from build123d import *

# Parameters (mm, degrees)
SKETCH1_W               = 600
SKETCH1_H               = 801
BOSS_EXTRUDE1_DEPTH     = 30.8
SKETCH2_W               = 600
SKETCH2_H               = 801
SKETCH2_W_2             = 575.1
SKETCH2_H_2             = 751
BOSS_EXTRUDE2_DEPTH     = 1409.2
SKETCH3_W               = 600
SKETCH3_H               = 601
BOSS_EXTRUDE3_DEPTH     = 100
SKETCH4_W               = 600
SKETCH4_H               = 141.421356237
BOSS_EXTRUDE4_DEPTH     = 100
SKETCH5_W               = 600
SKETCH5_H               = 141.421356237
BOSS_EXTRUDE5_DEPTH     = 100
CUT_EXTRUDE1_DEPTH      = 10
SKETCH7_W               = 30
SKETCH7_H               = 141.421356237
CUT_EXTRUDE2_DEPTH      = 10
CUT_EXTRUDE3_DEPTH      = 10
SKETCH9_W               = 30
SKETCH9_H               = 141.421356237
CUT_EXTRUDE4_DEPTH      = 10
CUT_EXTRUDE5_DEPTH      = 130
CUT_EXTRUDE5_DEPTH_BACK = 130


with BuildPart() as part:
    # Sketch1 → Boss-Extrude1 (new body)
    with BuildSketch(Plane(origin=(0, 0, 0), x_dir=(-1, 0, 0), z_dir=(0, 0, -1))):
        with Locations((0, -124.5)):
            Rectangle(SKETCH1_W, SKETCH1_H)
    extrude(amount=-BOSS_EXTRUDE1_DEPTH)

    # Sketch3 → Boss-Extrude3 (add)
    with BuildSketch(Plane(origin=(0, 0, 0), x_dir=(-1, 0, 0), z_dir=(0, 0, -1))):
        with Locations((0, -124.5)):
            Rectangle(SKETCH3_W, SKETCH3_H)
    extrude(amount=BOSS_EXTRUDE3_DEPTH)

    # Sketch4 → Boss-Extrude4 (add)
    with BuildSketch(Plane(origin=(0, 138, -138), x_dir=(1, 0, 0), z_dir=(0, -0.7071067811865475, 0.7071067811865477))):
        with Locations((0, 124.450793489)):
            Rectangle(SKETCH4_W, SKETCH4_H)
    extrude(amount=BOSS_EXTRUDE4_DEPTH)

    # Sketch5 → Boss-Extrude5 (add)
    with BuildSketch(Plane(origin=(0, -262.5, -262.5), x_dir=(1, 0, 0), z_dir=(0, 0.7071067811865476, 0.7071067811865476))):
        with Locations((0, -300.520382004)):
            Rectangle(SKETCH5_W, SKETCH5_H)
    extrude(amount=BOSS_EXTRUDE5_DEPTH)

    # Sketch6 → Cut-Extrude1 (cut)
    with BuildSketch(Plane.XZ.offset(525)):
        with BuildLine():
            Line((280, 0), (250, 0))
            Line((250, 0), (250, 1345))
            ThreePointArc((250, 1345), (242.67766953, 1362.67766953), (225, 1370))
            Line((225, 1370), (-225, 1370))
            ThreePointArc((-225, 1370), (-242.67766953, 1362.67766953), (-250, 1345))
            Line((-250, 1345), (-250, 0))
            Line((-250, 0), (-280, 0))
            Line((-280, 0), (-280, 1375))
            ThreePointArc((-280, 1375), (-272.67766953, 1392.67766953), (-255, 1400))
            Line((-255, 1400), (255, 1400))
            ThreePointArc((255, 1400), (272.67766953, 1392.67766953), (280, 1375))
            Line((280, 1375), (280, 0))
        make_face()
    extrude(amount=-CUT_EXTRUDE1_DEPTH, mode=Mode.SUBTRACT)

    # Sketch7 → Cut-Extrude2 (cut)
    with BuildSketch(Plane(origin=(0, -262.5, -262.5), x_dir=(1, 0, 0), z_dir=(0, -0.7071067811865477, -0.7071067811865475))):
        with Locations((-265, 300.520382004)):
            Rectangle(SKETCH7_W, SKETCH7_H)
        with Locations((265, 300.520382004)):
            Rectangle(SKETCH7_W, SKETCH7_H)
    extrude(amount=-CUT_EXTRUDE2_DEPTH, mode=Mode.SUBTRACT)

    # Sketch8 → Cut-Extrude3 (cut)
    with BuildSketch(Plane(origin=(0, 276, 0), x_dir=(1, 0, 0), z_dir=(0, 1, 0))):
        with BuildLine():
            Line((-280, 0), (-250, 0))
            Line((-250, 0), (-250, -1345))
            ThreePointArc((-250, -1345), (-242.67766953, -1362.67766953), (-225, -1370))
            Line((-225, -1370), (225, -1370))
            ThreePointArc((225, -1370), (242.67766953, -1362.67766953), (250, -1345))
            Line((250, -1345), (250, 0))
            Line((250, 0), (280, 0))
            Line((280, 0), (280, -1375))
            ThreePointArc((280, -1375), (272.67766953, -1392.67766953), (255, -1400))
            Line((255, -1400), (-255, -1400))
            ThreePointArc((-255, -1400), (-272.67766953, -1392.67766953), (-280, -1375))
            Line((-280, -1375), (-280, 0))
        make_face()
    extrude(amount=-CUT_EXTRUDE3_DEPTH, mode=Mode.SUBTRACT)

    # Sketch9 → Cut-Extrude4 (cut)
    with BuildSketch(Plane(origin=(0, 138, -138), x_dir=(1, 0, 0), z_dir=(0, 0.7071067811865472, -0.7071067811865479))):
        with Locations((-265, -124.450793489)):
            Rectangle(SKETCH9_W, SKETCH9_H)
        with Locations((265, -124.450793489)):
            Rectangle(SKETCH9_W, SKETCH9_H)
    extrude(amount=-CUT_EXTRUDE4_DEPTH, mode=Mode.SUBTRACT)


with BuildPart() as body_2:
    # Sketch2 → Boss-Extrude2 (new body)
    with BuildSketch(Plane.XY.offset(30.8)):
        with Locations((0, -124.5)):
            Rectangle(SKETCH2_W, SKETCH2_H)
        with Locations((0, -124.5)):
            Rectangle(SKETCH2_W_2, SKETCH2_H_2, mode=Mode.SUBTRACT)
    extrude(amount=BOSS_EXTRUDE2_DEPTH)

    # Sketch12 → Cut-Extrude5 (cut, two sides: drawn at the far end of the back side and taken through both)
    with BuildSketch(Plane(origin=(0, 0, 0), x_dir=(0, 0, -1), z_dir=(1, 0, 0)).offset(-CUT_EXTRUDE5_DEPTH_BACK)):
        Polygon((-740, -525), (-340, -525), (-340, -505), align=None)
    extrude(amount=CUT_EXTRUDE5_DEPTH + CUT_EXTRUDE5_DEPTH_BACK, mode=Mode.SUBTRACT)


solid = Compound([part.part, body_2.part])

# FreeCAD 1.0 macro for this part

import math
import FreeCAD as App
import Part
import Sketcher
from FreeCAD import Vector
Q = App.Units.Quantity

doc = App.newDocument("Part")
body = doc.addObject("PartDesign::Body", "Body")

# Sketch on XY plane
sketch1 = body.newObject("Sketcher::SketchObject", "Sketch")
sketch1.AttachmentSupport = (doc.getObject("XY_Plane"), [""])
sketch1.MapMode = "FlatFace"
sketch1.addGeometry([
    Part.LineSegment(Vector(300, 276, 0), Vector(300, -525, 0)),
    Part.LineSegment(Vector(300, -525, 0), Vector(-300, -525, 0)),
    Part.LineSegment(Vector(-300, -525, 0), Vector(-300, 276, 0)),
    Part.LineSegment(Vector(-300, 276, 0), Vector(300, 276, 0)),
], False)
sketch1.addConstraint([
    Sketcher.Constraint("Coincident", 0, 2, 1, 1),
    Sketcher.Constraint("Coincident", 1, 2, 2, 1),
    Sketcher.Constraint("Coincident", 2, 2, 3, 1),
    Sketcher.Constraint("Coincident", 3, 2, 0, 1),
    Sketcher.Constraint("Vertical", 0),
    Sketcher.Constraint("Horizontal", 1),
    Sketcher.Constraint("Vertical", 2),
    Sketcher.Constraint("Horizontal", 3),
    Sketcher.Constraint("DistanceX", 1, 2, 1, 1, Q("600 mm")),
    Sketcher.Constraint("DistanceY", 0, 2, 0, 1, Q("801 mm")),
    Sketcher.Constraint("DistanceX", -1, 1, 0, 2, Q("300 mm")),
    Sketcher.Constraint("DistanceY", 0, 2, -1, 1, Q("525 mm")),
])
pad1 = body.newObject("PartDesign::Pad", "Pad")
pad1.Profile = sketch1
pad1.Length = 30.8

# Sketch on XY plane
sketch2 = body.newObject("Sketcher::SketchObject", "Sketch001")
sketch2.AttachmentSupport = (doc.getObject("XY_Plane"), [""])
sketch2.MapMode = "FlatFace"
sketch2.addGeometry([
    Part.LineSegment(Vector(300, 176, 0), Vector(300, -425, 0)),
    Part.LineSegment(Vector(300, -425, 0), Vector(-300, -425, 0)),
    Part.LineSegment(Vector(-300, -425, 0), Vector(-300, 176, 0)),
    Part.LineSegment(Vector(-300, 176, 0), Vector(300, 176, 0)),
], False)
sketch2.addConstraint([
    Sketcher.Constraint("Coincident", 0, 2, 1, 1),
    Sketcher.Constraint("Coincident", 1, 2, 2, 1),
    Sketcher.Constraint("Coincident", 2, 2, 3, 1),
    Sketcher.Constraint("Coincident", 3, 2, 0, 1),
    Sketcher.Constraint("Vertical", 0),
    Sketcher.Constraint("Horizontal", 1),
    Sketcher.Constraint("Vertical", 2),
    Sketcher.Constraint("Horizontal", 3),
    Sketcher.Constraint("DistanceX", 1, 2, 1, 1, Q("600 mm")),
    Sketcher.Constraint("DistanceY", 0, 2, 0, 1, Q("601 mm")),
    Sketcher.Constraint("DistanceX", -1, 1, 0, 2, Q("300 mm")),
    Sketcher.Constraint("DistanceY", 0, 2, -1, 1, Q("425 mm")),
])
pad2 = body.newObject("PartDesign::Pad", "Pad001")
pad2.Profile = sketch2
pad2.Length = 100
pad2.Reversed = True

# Sketch on an angled plane
sketch3 = body.newObject("Sketcher::SketchObject", "Sketch002")
sketch3.Placement = App.Placement(Vector(0, 138, -138), App.Rotation(Vector(1, 0, 0), Vector(0, 0.707106781, 0.707106781), Vector(0, -0.707106781, 0.707106781), "ZXY"))
sketch3.addGeometry([
    Part.LineSegment(Vector(-300, 195, 0), Vector(-300, 54, 0)),
    Part.LineSegment(Vector(-300, 54, 0), Vector(300, 54, 0)),
    Part.LineSegment(Vector(300, 54, 0), Vector(300, 195, 0)),
    Part.LineSegment(Vector(300, 195, 0), Vector(-300, 195, 0)),
], False)
sketch3.addConstraint([
    Sketcher.Constraint("Coincident", 0, 2, 1, 1),
    Sketcher.Constraint("Coincident", 1, 2, 2, 1),
    Sketcher.Constraint("Coincident", 2, 2, 3, 1),
    Sketcher.Constraint("Coincident", 3, 2, 0, 1),
    Sketcher.Constraint("Vertical", 0),
    Sketcher.Constraint("Horizontal", 1),
    Sketcher.Constraint("Vertical", 2),
    Sketcher.Constraint("Horizontal", 3),
    Sketcher.Constraint("DistanceX", 1, 1, 1, 2, Q("600 mm")),
    Sketcher.Constraint("DistanceX", 0, 2, -1, 1, Q("300 mm")),
    Sketcher.Constraint("DistanceY", 0, 2, 0, 1, Q("141.421356 mm")),
    Sketcher.Constraint("DistanceY", -1, 1, 2, 2, Q("195.161472 mm")),
])
pad3 = body.newObject("PartDesign::Pad", "Pad002")
pad3.Profile = sketch3
pad3.Length = 100

# Sketch on an angled plane
sketch4 = body.newObject("Sketcher::SketchObject", "Sketch003")
sketch4.Placement = App.Placement(Vector(0, -262.5, -262.5), App.Rotation(Vector(1, 0, 0), Vector(0, 0.707106781, -0.707106781), Vector(0, 0.707106781, 0.707106781), "ZXY"))
sketch4.addGeometry([
    Part.LineSegment(Vector(-300, -230, 0), Vector(-300, -371, 0)),
    Part.LineSegment(Vector(-300, -371, 0), Vector(300, -371, 0)),
    Part.LineSegment(Vector(300, -371, 0), Vector(300, -230, 0)),
    Part.LineSegment(Vector(300, -230, 0), Vector(-300, -230, 0)),
], False)
sketch4.addConstraint([
    Sketcher.Constraint("Coincident", 0, 2, 1, 1),
    Sketcher.Constraint("Coincident", 1, 2, 2, 1),
    Sketcher.Constraint("Coincident", 2, 2, 3, 1),
    Sketcher.Constraint("Coincident", 3, 2, 0, 1),
    Sketcher.Constraint("Vertical", 0),
    Sketcher.Constraint("Horizontal", 1),
    Sketcher.Constraint("Vertical", 2),
    Sketcher.Constraint("Horizontal", 3),
    Sketcher.Constraint("DistanceX", 1, 1, 1, 2, Q("600 mm")),
    Sketcher.Constraint("DistanceX", 0, 2, -1, 1, Q("300 mm")),
    Sketcher.Constraint("DistanceY", 0, 2, 0, 1, Q("141.421356 mm")),
    Sketcher.Constraint("DistanceY", 0, 2, -1, 1, Q("371.23106 mm")),
])
pad4 = body.newObject("PartDesign::Pad", "Pad003")
pad4.Profile = sketch4
pad4.Length = 100

# Sketch on XZ plane
sketch5 = body.newObject("Sketcher::SketchObject", "Sketch004")
sketch5.AttachmentSupport = (doc.getObject("XZ_Plane"), [""])
sketch5.MapMode = "FlatFace"
sketch5.AttachmentOffset = App.Placement(Vector(0, 0, 525), App.Rotation())
sketch5.addGeometry([
    Part.LineSegment(Vector(250, 0, 0), Vector(280, 0, 0)),  # 0
    Part.LineSegment(Vector(280, 0, 0), Vector(280, 1375, 0)),  # 1
    Part.ArcOfCircle(Part.Circle(Vector(255, 1375, 0), Vector(0, 0, 1), 25), math.radians(0), math.radians(90)),  # 2
    Part.LineSegment(Vector(255, 1400, 0), Vector(-255, 1400, 0)),  # 3
    Part.ArcOfCircle(Part.Circle(Vector(-255, 1375, 0), Vector(0, 0, 1), 25), math.radians(90), math.radians(180)),  # 4
    Part.LineSegment(Vector(-280, 1375, 0), Vector(-280, 0, 0)),  # 5
    Part.LineSegment(Vector(-280, 0, 0), Vector(-250, 0, 0)),  # 6
    Part.LineSegment(Vector(-250, 0, 0), Vector(-250, 1345, 0)),  # 7
    Part.ArcOfCircle(Part.Circle(Vector(-225, 1345, 0), Vector(0, 0, 1), 25), math.radians(90), math.radians(180)),  # 8
    Part.LineSegment(Vector(-225, 1370, 0), Vector(225, 1370, 0)),  # 9
    Part.ArcOfCircle(Part.Circle(Vector(225, 1345, 0), Vector(0, 0, 1), 25), math.radians(0), math.radians(90)),  # 10
    Part.LineSegment(Vector(250, 1345, 0), Vector(250, 0, 0)),  # 11
], False)
sketch5.addConstraint([
    Sketcher.Constraint("Coincident", 0, 2, 1, 1),
    Sketcher.Constraint("Tangent", 1, 2, 2, 1),
    Sketcher.Constraint("Tangent", 2, 2, 3, 1),
    Sketcher.Constraint("Tangent", 3, 2, 4, 1),
    Sketcher.Constraint("Tangent", 4, 2, 5, 1),
    Sketcher.Constraint("Coincident", 5, 2, 6, 1),
    Sketcher.Constraint("Coincident", 6, 2, 7, 1),
    Sketcher.Constraint("Tangent", 7, 2, 8, 2),
    Sketcher.Constraint("Tangent", 8, 1, 9, 1),
    Sketcher.Constraint("Tangent", 9, 2, 10, 2),
    Sketcher.Constraint("Tangent", 10, 1, 11, 1),
    Sketcher.Constraint("Coincident", 11, 2, 0, 1),
    Sketcher.Constraint("Horizontal", 0),
    Sketcher.Constraint("Vertical", 1),
    Sketcher.Constraint("Horizontal", 3),
    Sketcher.Constraint("Vertical", 5),
    Sketcher.Constraint("Horizontal", 6),
    Sketcher.Constraint("Vertical", 7),
    Sketcher.Constraint("Horizontal", 9),
    Sketcher.Constraint("Vertical", 11),
    Sketcher.Constraint("Equal", 2, 4),
    Sketcher.Constraint("Equal", 4, 8),
    Sketcher.Constraint("Equal", 8, 10),
    Sketcher.Constraint("Symmetric", 0, 2, 5, 2, -1, 1),
    Sketcher.Constraint("Symmetric", 6, 2, 11, 2, -2),
    Sketcher.Constraint("Radius", 2, Q("25 mm")),
    Sketcher.Constraint("DistanceX", 0, 1, 0, 2, Q("30 mm")),
    Sketcher.Constraint("DistanceX", 3, 2, 3, 1, Q("510 mm")),
    Sketcher.Constraint("DistanceY", 1, 1, 1, 2, Q("1375 mm")),
    Sketcher.Constraint("DistanceY", 7, 1, 7, 2, Q("1345 mm")),
])
pocket1 = body.newObject("PartDesign::Pocket", "Pocket")
pocket1.Profile = sketch5
pocket1.Length = 10

# Sketch on an angled plane
sketch6 = body.newObject("Sketcher::SketchObject", "Sketch005")
sketch6.Placement = App.Placement(Vector(0, -262.5, -262.5), App.Rotation(Vector(1, 0, 0), Vector(0, -0.707106781, 0.707106781), Vector(0, -0.707106781, -0.707106781), "ZXY"))
sketch6.addGeometry([
    Part.LineSegment(Vector(-280, 371, 0), Vector(-280, 230, 0)),  # 0
    Part.LineSegment(Vector(-280, 230, 0), Vector(-250, 230, 0)),  # 1
    Part.LineSegment(Vector(-250, 230, 0), Vector(-250, 371, 0)),  # 2
    Part.LineSegment(Vector(-250, 371, 0), Vector(-280, 371, 0)),  # 3
    Part.LineSegment(Vector(250, 371, 0), Vector(250, 230, 0)),  # 4
    Part.LineSegment(Vector(250, 230, 0), Vector(280, 230, 0)),  # 5
    Part.LineSegment(Vector(280, 230, 0), Vector(280, 371, 0)),  # 6
    Part.LineSegment(Vector(280, 371, 0), Vector(250, 371, 0)),  # 7
], False)
sketch6.addConstraint([
    Sketcher.Constraint("Coincident", 0, 2, 1, 1),
    Sketcher.Constraint("Coincident", 1, 2, 2, 1),
    Sketcher.Constraint("Coincident", 2, 2, 3, 1),
    Sketcher.Constraint("Coincident", 3, 2, 0, 1),
    Sketcher.Constraint("Coincident", 4, 2, 5, 1),
    Sketcher.Constraint("Coincident", 5, 2, 6, 1),
    Sketcher.Constraint("Coincident", 6, 2, 7, 1),
    Sketcher.Constraint("Coincident", 7, 2, 4, 1),
    Sketcher.Constraint("Vertical", 0),
    Sketcher.Constraint("Horizontal", 1),
    Sketcher.Constraint("Vertical", 2),
    Sketcher.Constraint("Horizontal", 3),
    Sketcher.Constraint("Vertical", 4),
    Sketcher.Constraint("Horizontal", 5),
    Sketcher.Constraint("Vertical", 6),
    Sketcher.Constraint("Horizontal", 7),
    Sketcher.Constraint("Symmetric", 1, 2, 4, 2, -2),
    Sketcher.Constraint("Symmetric", 3, 2, 6, 2, -2),
    Sketcher.Constraint("DistanceX", 1, 1, 1, 2, Q("30 mm")),
    Sketcher.Constraint("DistanceX", 0, 2, -1, 1, Q("280 mm")),
    Sketcher.Constraint("DistanceY", 0, 2, 0, 1, Q("141.421356 mm")),
    Sketcher.Constraint("DistanceY", -1, 1, 2, 2, Q("371.23106 mm")),
])
pocket2 = body.newObject("PartDesign::Pocket", "Pocket001")
pocket2.Profile = sketch6
pocket2.Length = 10

# Sketch on XZ plane
sketch7 = body.newObject("Sketcher::SketchObject", "Sketch006")
sketch7.AttachmentSupport = (doc.getObject("XZ_Plane"), [""])
sketch7.MapMode = "FlatFace"
sketch7.AttachmentOffset = App.Placement(Vector(0, 0, -276), App.Rotation())
sketch7.addGeometry([
    Part.LineSegment(Vector(-250, 0, 0), Vector(-280, 0, 0)),  # 0
    Part.LineSegment(Vector(-280, 0, 0), Vector(-280, 1375, 0)),  # 1
    Part.ArcOfCircle(Part.Circle(Vector(-255, 1375, 0), Vector(0, 0, 1), 25), math.radians(90), math.radians(180)),  # 2
    Part.LineSegment(Vector(-255, 1400, 0), Vector(255, 1400, 0)),  # 3
    Part.ArcOfCircle(Part.Circle(Vector(255, 1375, 0), Vector(0, 0, 1), 25), math.radians(0), math.radians(90)),  # 4
    Part.LineSegment(Vector(280, 1375, 0), Vector(280, 0, 0)),  # 5
    Part.LineSegment(Vector(280, 0, 0), Vector(250, 0, 0)),  # 6
    Part.LineSegment(Vector(250, 0, 0), Vector(250, 1345, 0)),  # 7
    Part.ArcOfCircle(Part.Circle(Vector(225, 1345, 0), Vector(0, 0, 1), 25), math.radians(0), math.radians(90)),  # 8
    Part.LineSegment(Vector(225, 1370, 0), Vector(-225, 1370, 0)),  # 9
    Part.ArcOfCircle(Part.Circle(Vector(-225, 1345, 0), Vector(0, 0, 1), 25), math.radians(90), math.radians(180)),  # 10
    Part.LineSegment(Vector(-250, 1345, 0), Vector(-250, 0, 0)),  # 11
], False)
sketch7.addConstraint([
    Sketcher.Constraint("Coincident", 0, 2, 1, 1),
    Sketcher.Constraint("Tangent", 1, 2, 2, 2),
    Sketcher.Constraint("Tangent", 2, 1, 3, 1),
    Sketcher.Constraint("Tangent", 3, 2, 4, 2),
    Sketcher.Constraint("Tangent", 4, 1, 5, 1),
    Sketcher.Constraint("Coincident", 5, 2, 6, 1),
    Sketcher.Constraint("Coincident", 6, 2, 7, 1),
    Sketcher.Constraint("Tangent", 7, 2, 8, 1),
    Sketcher.Constraint("Tangent", 8, 2, 9, 1),
    Sketcher.Constraint("Tangent", 9, 2, 10, 1),
    Sketcher.Constraint("Tangent", 10, 2, 11, 1),
    Sketcher.Constraint("Coincident", 11, 2, 0, 1),
    Sketcher.Constraint("Horizontal", 0),
    Sketcher.Constraint("Vertical", 1),
    Sketcher.Constraint("Horizontal", 3),
    Sketcher.Constraint("Vertical", 5),
    Sketcher.Constraint("Horizontal", 6),
    Sketcher.Constraint("Vertical", 7),
    Sketcher.Constraint("Horizontal", 9),
    Sketcher.Constraint("Vertical", 11),
    Sketcher.Constraint("Equal", 2, 4),
    Sketcher.Constraint("Equal", 4, 8),
    Sketcher.Constraint("Equal", 8, 10),
    Sketcher.Constraint("Symmetric", 0, 2, 5, 2, -1, 1),
    Sketcher.Constraint("Symmetric", 6, 2, 11, 2, -2),
    Sketcher.Constraint("Radius", 2, Q("25 mm")),
    Sketcher.Constraint("DistanceX", 0, 2, 0, 1, Q("30 mm")),
    Sketcher.Constraint("DistanceX", 3, 1, 3, 2, Q("510 mm")),
    Sketcher.Constraint("DistanceY", 1, 1, 1, 2, Q("1375 mm")),
    Sketcher.Constraint("DistanceY", 7, 1, 7, 2, Q("1345 mm")),
])
pocket3 = body.newObject("PartDesign::Pocket", "Pocket002")
pocket3.Profile = sketch7
pocket3.Length = 10
pocket3.Reversed = True

# Sketch on an angled plane
sketch8 = body.newObject("Sketcher::SketchObject", "Sketch007")
sketch8.Placement = App.Placement(Vector(0, 138, -138), App.Rotation(Vector(1, 0, 0), Vector(0, -0.707106781, -0.707106781), Vector(0, 0.707106781, -0.707106781), "ZXY"))
sketch8.addGeometry([
    Part.LineSegment(Vector(-280, -54, 0), Vector(-280, -195, 0)),  # 0
    Part.LineSegment(Vector(-280, -195, 0), Vector(-250, -195, 0)),  # 1
    Part.LineSegment(Vector(-250, -195, 0), Vector(-250, -54, 0)),  # 2
    Part.LineSegment(Vector(-250, -54, 0), Vector(-280, -54, 0)),  # 3
    Part.LineSegment(Vector(250, -54, 0), Vector(250, -195, 0)),  # 4
    Part.LineSegment(Vector(250, -195, 0), Vector(280, -195, 0)),  # 5
    Part.LineSegment(Vector(280, -195, 0), Vector(280, -54, 0)),  # 6
    Part.LineSegment(Vector(280, -54, 0), Vector(250, -54, 0)),  # 7
], False)
sketch8.addConstraint([
    Sketcher.Constraint("Coincident", 0, 2, 1, 1),
    Sketcher.Constraint("Coincident", 1, 2, 2, 1),
    Sketcher.Constraint("Coincident", 2, 2, 3, 1),
    Sketcher.Constraint("Coincident", 3, 2, 0, 1),
    Sketcher.Constraint("Coincident", 4, 2, 5, 1),
    Sketcher.Constraint("Coincident", 5, 2, 6, 1),
    Sketcher.Constraint("Coincident", 6, 2, 7, 1),
    Sketcher.Constraint("Coincident", 7, 2, 4, 1),
    Sketcher.Constraint("Vertical", 0),
    Sketcher.Constraint("Horizontal", 1),
    Sketcher.Constraint("Vertical", 2),
    Sketcher.Constraint("Horizontal", 3),
    Sketcher.Constraint("Vertical", 4),
    Sketcher.Constraint("Horizontal", 5),
    Sketcher.Constraint("Vertical", 6),
    Sketcher.Constraint("Horizontal", 7),
    Sketcher.Constraint("Symmetric", 1, 2, 4, 2, -2),
    Sketcher.Constraint("Symmetric", 3, 2, 6, 2, -2),
    Sketcher.Constraint("DistanceX", 1, 1, 1, 2, Q("30 mm")),
    Sketcher.Constraint("DistanceX", 0, 2, -1, 1, Q("280 mm")),
    Sketcher.Constraint("DistanceY", 0, 2, 0, 1, Q("141.421356 mm")),
    Sketcher.Constraint("DistanceY", 0, 2, -1, 1, Q("195.161472 mm")),
])
pocket4 = body.newObject("PartDesign::Pocket", "Pocket003")
pocket4.Profile = sketch8
pocket4.Length = 10
body2 = doc.addObject("PartDesign::Body", "Body001")

# Sketch on XY plane
sketch9 = body2.newObject("Sketcher::SketchObject", "Sketch008")
sketch9.AttachmentSupport = (doc.getObject("XY_Plane001"), [""])
sketch9.MapMode = "FlatFace"
sketch9.AttachmentOffset = App.Placement(Vector(0, 0, 30.8), App.Rotation())
sketch9.addGeometry([
    Part.LineSegment(Vector(-300, 276, 0), Vector(-300, -525, 0)),  # 0
    Part.LineSegment(Vector(-300, -525, 0), Vector(300, -525, 0)),  # 1
    Part.LineSegment(Vector(300, -525, 0), Vector(300, 276, 0)),  # 2
    Part.LineSegment(Vector(300, 276, 0), Vector(-300, 276, 0)),  # 3
    Part.LineSegment(Vector(288, -500, 0), Vector(-288, -500, 0)),  # 4
    Part.LineSegment(Vector(-288, -500, 0), Vector(-288, 251, 0)),  # 5
    Part.LineSegment(Vector(-288, 251, 0), Vector(288, 251, 0)),  # 6
    Part.LineSegment(Vector(288, 251, 0), Vector(288, -500, 0)),  # 7
], False)
sketch9.addConstraint([
    Sketcher.Constraint("Coincident", 0, 2, 1, 1),
    Sketcher.Constraint("Coincident", 1, 2, 2, 1),
    Sketcher.Constraint("Coincident", 2, 2, 3, 1),
    Sketcher.Constraint("Coincident", 3, 2, 0, 1),
    Sketcher.Constraint("Coincident", 4, 2, 5, 1),
    Sketcher.Constraint("Coincident", 5, 2, 6, 1),
    Sketcher.Constraint("Coincident", 6, 2, 7, 1),
    Sketcher.Constraint("Coincident", 7, 2, 4, 1),
    Sketcher.Constraint("Vertical", 0),
    Sketcher.Constraint("Horizontal", 1),
    Sketcher.Constraint("Vertical", 2),
    Sketcher.Constraint("Horizontal", 3),
    Sketcher.Constraint("Horizontal", 4),
    Sketcher.Constraint("Vertical", 5),
    Sketcher.Constraint("Horizontal", 6),
    Sketcher.Constraint("Vertical", 7),
    Sketcher.Constraint("DistanceX", 1, 1, 1, 2, Q("600 mm")),
    Sketcher.Constraint("DistanceY", 0, 2, 0, 1, Q("801 mm")),
    Sketcher.Constraint("DistanceY", 5, 1, 5, 2, Q("751 mm")),
    Sketcher.Constraint("DistanceX", 4, 2, 4, 1, Q("575.1 mm")),
    Sketcher.Constraint("DistanceX", 0, 2, -1, 1, Q("300 mm")),
    Sketcher.Constraint("DistanceY", 0, 2, -1, 1, Q("525 mm")),
    Sketcher.Constraint("DistanceY", 4, 2, -1, 1, Q("500 mm")),
    Sketcher.Constraint("DistanceX", 4, 2, -1, 1, Q("287.55 mm")),
])
pad5 = body2.newObject("PartDesign::Pad", "Pad004")
pad5.Profile = sketch9
pad5.Length = 1409.2

# Sketch on YZ plane
sketch10 = body2.newObject("Sketcher::SketchObject", "Sketch009")
sketch10.AttachmentSupport = (doc.getObject("YZ_Plane001"), [""])
sketch10.MapMode = "FlatFace"
sketch10.addGeometry([
    Part.LineSegment(Vector(-525, 740, 0), Vector(-525, 340, 0)),
    Part.LineSegment(Vector(-525, 340, 0), Vector(-505, 340, 0)),
    Part.LineSegment(Vector(-505, 340, 0), Vector(-525, 740, 0)),
], False)
sketch10.addConstraint([
    Sketcher.Constraint("Coincident", 0, 2, 1, 1),
    Sketcher.Constraint("Coincident", 1, 2, 2, 1),
    Sketcher.Constraint("Coincident", 2, 2, 0, 1),
    Sketcher.Constraint("Vertical", 0),
    Sketcher.Constraint("Horizontal", 1),
    Sketcher.Constraint("DistanceX", 1, 1, 1, 2, Q("20 mm")),
    Sketcher.Constraint("DistanceY", 0, 2, 0, 1, Q("400 mm")),
    Sketcher.Constraint("DistanceX", 0, 2, -1, 1, Q("525 mm")),
    Sketcher.Constraint("DistanceY", -1, 1, 0, 2, Q("340 mm")),
])
pocket5 = body2.newObject("PartDesign::Pocket", "Pocket004")
pocket5.Profile = sketch10
pocket5.Type = "TwoLengths"
pocket5.Length = 130
pocket5.Length2 = 130
pocket5.Reversed = True

doc.recompute()
